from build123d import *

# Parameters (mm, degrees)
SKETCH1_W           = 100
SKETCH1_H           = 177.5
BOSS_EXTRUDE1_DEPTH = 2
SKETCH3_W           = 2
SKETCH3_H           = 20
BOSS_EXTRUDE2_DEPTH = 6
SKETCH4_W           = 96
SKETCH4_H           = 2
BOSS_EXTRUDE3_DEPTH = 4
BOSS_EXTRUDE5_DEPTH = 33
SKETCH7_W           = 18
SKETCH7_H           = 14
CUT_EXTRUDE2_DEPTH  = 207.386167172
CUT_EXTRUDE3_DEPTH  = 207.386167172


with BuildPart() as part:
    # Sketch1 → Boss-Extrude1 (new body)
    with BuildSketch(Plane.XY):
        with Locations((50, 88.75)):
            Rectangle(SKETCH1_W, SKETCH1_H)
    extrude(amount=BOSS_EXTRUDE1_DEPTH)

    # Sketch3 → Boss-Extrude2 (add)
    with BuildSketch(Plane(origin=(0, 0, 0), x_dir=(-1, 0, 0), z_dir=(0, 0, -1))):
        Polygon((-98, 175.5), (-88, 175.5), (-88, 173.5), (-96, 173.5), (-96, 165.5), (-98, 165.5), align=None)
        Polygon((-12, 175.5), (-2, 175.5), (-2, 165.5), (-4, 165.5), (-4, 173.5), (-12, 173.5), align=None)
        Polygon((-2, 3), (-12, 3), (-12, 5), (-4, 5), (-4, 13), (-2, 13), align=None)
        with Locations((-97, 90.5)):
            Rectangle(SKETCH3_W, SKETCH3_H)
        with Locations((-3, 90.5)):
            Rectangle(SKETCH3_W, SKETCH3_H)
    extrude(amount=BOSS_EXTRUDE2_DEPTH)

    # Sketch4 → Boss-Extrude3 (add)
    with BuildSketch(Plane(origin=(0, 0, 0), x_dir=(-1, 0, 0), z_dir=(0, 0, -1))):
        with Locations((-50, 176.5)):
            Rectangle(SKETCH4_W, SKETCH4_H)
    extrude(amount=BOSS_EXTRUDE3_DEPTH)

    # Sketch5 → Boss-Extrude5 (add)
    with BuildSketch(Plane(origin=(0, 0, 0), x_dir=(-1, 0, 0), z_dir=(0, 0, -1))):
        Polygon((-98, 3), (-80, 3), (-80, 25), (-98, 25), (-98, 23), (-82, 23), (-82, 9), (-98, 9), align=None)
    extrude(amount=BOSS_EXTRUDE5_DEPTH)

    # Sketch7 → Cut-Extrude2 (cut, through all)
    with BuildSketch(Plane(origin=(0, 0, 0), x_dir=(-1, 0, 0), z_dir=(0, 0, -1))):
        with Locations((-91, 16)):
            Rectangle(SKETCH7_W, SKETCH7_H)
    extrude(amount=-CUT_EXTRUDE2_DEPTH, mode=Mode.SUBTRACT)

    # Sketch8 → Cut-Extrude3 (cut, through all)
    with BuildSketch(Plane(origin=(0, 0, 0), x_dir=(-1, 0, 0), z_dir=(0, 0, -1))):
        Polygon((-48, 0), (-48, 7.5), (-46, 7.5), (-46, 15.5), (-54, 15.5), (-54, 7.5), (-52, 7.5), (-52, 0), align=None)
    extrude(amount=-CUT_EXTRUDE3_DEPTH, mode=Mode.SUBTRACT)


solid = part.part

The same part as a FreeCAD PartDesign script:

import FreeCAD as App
import Part
import Sketcher
Q = App.Units.Quantity

doc = App.newDocument("Part")
params = doc.addObject("Spreadsheet::Sheet", "Params")
for row, (alias, value) in enumerate([
    ("sketch1_width", "100 mm"),
    ("sketch1_height", "177.5 mm"),
    ("pad1_length", "2 mm"),
    ("sketch2_width", "10 mm"),
    ("sketch2_width2", "2 mm"),
    ("sketch2_height", "20 mm"),
    ("pad2_length", "6 mm"),
    ("sketch3_width", "96 mm"),
    ("sketch3_height", "2 mm"),
    ("pad3_length", "4 mm"),
    ("sketch4_width", "18 mm"),
    ("sketch4_width2", "16 mm"),
    ("sketch4_height", "22 mm"),
    ("sketch4_height2", "2 mm"),
    ("sketch4_height3", "14 mm"),
    ("pad4_length", "33 mm"),
    ("sketch5_width", "18 mm"),
    ("sketch5_height", "14 mm"),
    ("sketch6_width", "2 mm"),
    ("sketch6_width2", "8 mm"),
    ("sketch6_height", "7.5 mm"),
], start=1):
    params.set(f"A{row}", alias)
    params.set(f"B{row}", "=" + value)
    params.setAlias(f"B{row}", alias)

body = doc.addObject("PartDesign::Body", "Body")

# Sketch on XY plane
sketch1 = body.newObject("Sketcher::SketchObject", "Sketch")
sketch1.AttachmentSupport = (doc.getObject("XY_Plane"), [""])
sketch1.MapMode = "FlatFace"
sketch1.addGeometry(Part.LineSegment(App.Vector(0, 178, 0), App.Vector(0, 0, 0)), False)
sketch1.addGeometry(Part.LineSegment(App.Vector(0, 0, 0), App.Vector(100, 0, 0)), False)
sketch1.addGeometry(Part.LineSegment(App.Vector(100, 0, 0), App.Vector(100, 178, 0)), False)
sketch1.addGeometry(Part.LineSegment(App.Vector(100, 178, 0), App.Vector(0, 178, 0)), False)
sketch1.addConstraint(Sketcher.Constraint("Coincident", 0, 2, 1, 1))
sketch1.addConstraint(Sketcher.Constraint("Coincident", 1, 2, 2, 1))
sketch1.addConstraint(Sketcher.Constraint("Coincident", 2, 2, 3, 1))
sketch1.addConstraint(Sketcher.Constraint("Coincident", 3, 2, 0, 1))
sketch1.addConstraint(Sketcher.Constraint("Vertical", 0))
sketch1.addConstraint(Sketcher.Constraint("Horizontal", 1))
sketch1.addConstraint(Sketcher.Constraint("Vertical", 2))
sketch1.addConstraint(Sketcher.Constraint("Horizontal", 3))
sketch1.addConstraint(Sketcher.Constraint("Coincident", 0, 2, -1, 1))
sketch1.addConstraint(Sketcher.Constraint("DistanceX", 1, 1, 1, 2, Q("100 mm")))
sketch1.addConstraint(Sketcher.Constraint("DistanceY", 0, 2, 0, 1, Q("177.5 mm")))
sketch1.setExpression("Constraints[9]", "Params.sketch1_width")
sketch1.setExpression("Constraints[10]", "Params.sketch1_height")
pad1 = body.newObject("PartDesign::Pad", "Pad")
pad1.Profile = sketch1
pad1.setExpression("Length", "Params.pad1_length")

# Sketch on XY plane
sketch2 = body.newObject("Sketcher::SketchObject", "Sketch001")
sketch2.AttachmentSupport = (doc.getObject("XY_Plane"), [""])
sketch2.MapMode = "FlatFace"
sketch2.addGeometry(Part.LineSegment(App.Vector(88, 175.5, 0), App.Vector(98, 175.5, 0)), False)
sketch2.addGeometry(Part.LineSegment(App.Vector(98, 175.5, 0), App.Vector(98, 165.5, 0)), False)
sketch2.addGeometry(Part.LineSegment(App.Vector(98, 165.5, 0), App.Vector(96, 165.5, 0)), False)
sketch2.addGeometry(Part.LineSegment(App.Vector(96, 165.5, 0), App.Vector(96, 173.5, 0)), False)
sketch2.addGeometry(Part.LineSegment(App.Vector(96, 173.5, 0), App.Vector(88, 173.5, 0)), False)
sketch2.addGeometry(Part.LineSegment(App.Vector(88, 173.5, 0), App.Vector(88, 175.5, 0)), False)
sketch2.addGeometry(Part.LineSegment(App.Vector(2, 175.5, 0), App.Vector(12, 175.5, 0)), False)
sketch2.addGeometry(Part.LineSegment(App.Vector(12, 175.5, 0), App.Vector(12, 173.5, 0)), False)
sketch2.addGeometry(Part.LineSegment(App.Vector(12, 173.5, 0), App.Vector(4, 173.5, 0)), False)
sketch2.addGeometry(Part.LineSegment(App.Vector(4, 173.5, 0), App.Vector(4, 165.5, 0)), False)
sketch2.addGeometry(Part.LineSegment(App.Vector(4, 165.5, 0), App.Vector(2, 165.5, 0)), False)
sketch2.addGeometry(Part.LineSegment(App.Vector(2, 165.5, 0), App.Vector(2, 175.5, 0)), False)
sketch2.addGeometry(Part.LineSegment(App.Vector(12, 3, 0), App.Vector(2, 3, 0)), False)
sketch2.addGeometry(Part.LineSegment(App.Vector(2, 3, 0), App.Vector(2, 13, 0)), False)
sketch2.addGeometry(Part.LineSegment(App.Vector(2, 13, 0), App.Vector(4, 13, 0)), False)
sketch2.addGeometry(Part.LineSegment(App.Vector(4, 13, 0), App.Vector(4, 5, 0)), False)
sketch2.addGeometry(Part.LineSegment(App.Vector(4, 5, 0), App.Vector(12, 5, 0)), False)
sketch2.addGeometry(Part.LineSegment(App.Vector(12, 5, 0), App.Vector(12, 3, 0)), False)
sketch2.addGeometry(Part.LineSegment(App.Vector(98, 100.5, 0), App.Vector(98, 80.5, 0)), False)
sketch2.addGeometry(Part.LineSegment(App.Vector(98, 80.5, 0), App.Vector(96, 80.5, 0)), False)
sketch2.addGeometry(Part.LineSegment(App.Vector(96, 80.5, 0), App.Vector(96, 100.5, 0)), False)
sketch2.addGeometry(Part.LineSegment(App.Vector(96, 100.5, 0), App.Vector(98, 100.5, 0)), False)
sketch2.addGeometry(Part.LineSegment(App.Vector(4, 100.5, 0), App.Vector(4, 80.5, 0)), False)
sketch2.addGeometry(Part.LineSegment(App.Vector(4, 80.5, 0), App.Vector(2, 80.5, 0)), False)
sketch2.addGeometry(Part.LineSegment(App.Vector(2, 80.5, 0), App.Vector(2, 100.5, 0)), False)
sketch2.addGeometry(Part.LineSegment(App.Vector(2, 100.5, 0), App.Vector(4, 100.5, 0)), False)
sketch2.addConstraint(Sketcher.Constraint("Coincident", 0, 2, 1, 1))
sketch2.addConstraint(Sketcher.Constraint("Coincident", 1, 2, 2, 1))
sketch2.addConstraint(Sketcher.Constraint("Coincident", 2, 2, 3, 1))
sketch2.addConstraint(Sketcher.Constraint("Coincident", 3, 2, 4, 1))
sketch2.addConstraint(Sketcher.Constraint("Coincident", 4, 2, 5, 1))
sketch2.addConstraint(Sketcher.Constraint("Coincident", 5, 2, 0, 1))
sketch2.addConstraint(Sketcher.Constraint("Coincident", 6, 2, 7, 1))
sketch2.addConstraint(Sketcher.Constraint("Coincident", 7, 2, 8, 1))
sketch2.addConstraint(Sketcher.Constraint("Coincident", 8, 2, 9, 1))
sketch2.addConstraint(Sketcher.Constraint("Coincident", 9, 2, 10, 1))
sketch2.addConstraint(Sketcher.Constraint("Coincident", 10, 2, 11, 1))
sketch2.addConstraint(Sketcher.Constraint("Coincident", 11, 2, 6, 1))
sketch2.addConstraint(Sketcher.Constraint("Coincident", 12, 2, 13, 1))
sketch2.addConstraint(Sketcher.Constraint("Coincident", 13, 2, 14, 1))
sketch2.addConstraint(Sketcher.Constraint("Coincident", 14, 2, 15, 1))
sketch2.addConstraint(Sketcher.Constraint("Coincident", 15, 2, 16, 1))
sketch2.addConstraint(Sketcher.Constraint("Coincident", 16, 2, 17, 1))
sketch2.addConstraint(Sketcher.Constraint("Coincident", 17, 2, 12, 1))
sketch2.addConstraint(Sketcher.Constraint("Coincident", 18, 2, 19, 1))
sketch2.addConstraint(Sketcher.Constraint("Coincident", 19, 2, 20, 1))
sketch2.addConstraint(Sketcher.Constraint("Coincident", 20, 2, 21, 1))
sketch2.addConstraint(Sketcher.Constraint("Coincident", 21, 2, 18, 1))
sketch2.addConstraint(Sketcher.Constraint("Coincident", 22, 2, 23, 1))
sketch2.addConstraint(Sketcher.Constraint("Coincident", 23, 2, 24, 1))
sketch2.addConstraint(Sketcher.Constraint("Coincident", 24, 2, 25, 1))
sketch2.addConstraint(Sketcher.Constraint("Coincident", 25, 2, 22, 1))
sketch2.addConstraint(Sketcher.Constraint("Horizontal", 0))
sketch2.addConstraint(Sketcher.Constraint("Vertical", 1))
sketch2.addConstraint(Sketcher.Constraint("Horizontal", 2))
sketch2.addConstraint(Sketcher.Constraint("Vertical", 3))
sketch2.addConstraint(Sketcher.Constraint("Horizontal", 4))
sketch2.addConstraint(Sketcher.Constraint("Vertical", 5))
sketch2.addConstraint(Sketcher.Constraint("Horizontal", 6))
sketch2.addConstraint(Sketcher.Constraint("Vertical", 7))
sketch2.addConstraint(Sketcher.Constraint("Horizontal", 8))
sketch2.addConstraint(Sketcher.Constraint("Vertical", 9))
sketch2.addConstraint(Sketcher.Constraint("Horizontal", 10))
sketch2.addConstraint(Sketcher.Constraint("Vertical", 11))
sketch2.addConstraint(Sketcher.Constraint("Horizontal", 12))
sketch2.addConstraint(Sketcher.Constraint("Vertical", 13))
sketch2.addConstraint(Sketcher.Constraint("Horizontal", 14))
sketch2.addConstraint(Sketcher.Constraint("Vertical", 15))
sketch2.addConstraint(Sketcher.Constraint("Horizontal", 16))
sketch2.addConstraint(Sketcher.Constraint("Vertical", 17))
sketch2.addConstraint(Sketcher.Constraint("Vertical", 18))
sketch2.addConstraint(Sketcher.Constraint("Horizontal", 19))
sketch2.addConstraint(Sketcher.Constraint("Vertical", 20))
sketch2.addConstraint(Sketcher.Constraint("Horizontal", 21))
sketch2.addConstraint(Sketcher.Constraint("Vertical", 22))
sketch2.addConstraint(Sketcher.Constraint("Horizontal", 23))
sketch2.addConstraint(Sketcher.Constraint("Vertical", 24))
sketch2.addConstraint(Sketcher.Constraint("Horizontal", 25))
sketch2.addConstraint(Sketcher.Constraint("Horizontal", 5, 2, 6, 2))
sketch2.addConstraint(Sketcher.Constraint("Horizontal", 4, 2, 7, 2))
sketch2.addConstraint(Sketcher.Constraint("Horizontal", 2, 2, 9, 2))
sketch2.addConstraint(Sketcher.Constraint("Horizontal", 19, 2, 22, 2))
sketch2.addConstraint(Sketcher.Constraint("Horizontal", 21, 2, 24, 2))
sketch2.addConstraint(Sketcher.Constraint("Vertical", 11, 2, 12, 2))
sketch2.addConstraint(Sketcher.Constraint("Vertical", 9, 2, 14, 2))
sketch2.addConstraint(Sketcher.Constraint("Vertical", 7, 2, 16, 2))
sketch2.addConstraint(Sketcher.Constraint("Vertical", 1, 2, 18, 2))
sketch2.addConstraint(Sketcher.Constraint("Vertical", 3, 2, 19, 2))
sketch2.addConstraint(Sketcher.Constraint("Vertical", 15, 2, 22, 2))
sketch2.addConstraint(Sketcher.Constraint("Vertical", 13, 2, 23, 2))
sketch2.addConstraint(Sketcher.Constraint("Equal", 0, 6))
sketch2.addConstraint(Sketcher.Constraint("Equal", 4, 8))
sketch2.addConstraint(Sketcher.Constraint("Equal", 12, 1))
sketch2.addConstraint(Sketcher.Constraint("Equal", 16, 3))
sketch2.addConstraint(Sketcher.Constraint("Equal", 11, 13))
sketch2.addConstraint(Sketcher.Constraint("Equal", 9, 15))
sketch2.addConstraint(Sketcher.Constraint("DistanceX", 0, 1, 0, 2, Q("10 mm")))
sketch2.addConstraint(Sketcher.Constraint("DistanceX", 2, 2, 2, 1, Q("2 mm")))
sketch2.addConstraint(Sketcher.Constraint("DistanceY", 18, 2, 18, 1, Q("20 mm")))
sketch2.addConstraint(Sketcher.Constraint("DistanceX", -1, 1, 0, 2, Q("98 mm")))
sketch2.addConstraint(Sketcher.Constraint("DistanceX", -1, 1, 6, 2, Q("12 mm")))
sketch2.addConstraint(Sketcher.Constraint("DistanceY", -1, 1, 12, 2, Q("3 mm")))
sketch2.addConstraint(Sketcher.Constraint("DistanceY", 18, 2, 1, 2, Q("85 mm")))
sketch2.addConstraint(Sketcher.Constraint("DistanceY", -1, 1, 0, 2, Q("175.5 mm")))
sketch2.setExpression("Constraints[70]", "Params.sketch2_width")
sketch2.setExpression("Constraints[71]", "Params.sketch2_width2")
sketch2.setExpression("Constraints[72]", "Params.sketch2_height")
pad2 = body.newObject("PartDesign::Pad", "Pad001")
pad2.Profile = sketch2
pad2.setExpression("Length", "Params.pad2_length")
pad2.Reversed = True

# Sketch on XY plane
sketch3 = body.newObject("Sketcher::SketchObject", "Sketch002")
sketch3.AttachmentSupport = (doc.getObject("XY_Plane"), [""])
sketch3.MapMode = "FlatFace"
sketch3.addGeometry(Part.LineSegment(App.Vector(98, 177.5, 0), App.Vector(98, 175.5, 0)), False)
sketch3.addGeometry(Part.LineSegment(App.Vector(98, 175.5, 0), App.Vector(2, 175.5, 0)), False)
sketch3.addGeometry(Part.LineSegment(App.Vector(2, 175.5, 0), App.Vector(2, 177.5, 0)), False)
sketch3.addGeometry(Part.LineSegment(App.Vector(2, 177.5, 0), App.Vector(98, 177.5, 0)), False)
sketch3.addConstraint(Sketcher.Constraint("Coincident", 0, 2, 1, 1))
sketch3.addConstraint(Sketcher.Constraint("Coincident", 1, 2, 2, 1))
sketch3.addConstraint(Sketcher.Constraint("Coincident", 2, 2, 3, 1))
sketch3.addConstraint(Sketcher.Constraint("Coincident", 3, 2, 0, 1))
sketch3.addConstraint(Sketcher.Constraint("Vertical", 0))
sketch3.addConstraint(Sketcher.Constraint("Horizontal", 1))
sketch3.addConstraint(Sketcher.Constraint("Vertical", 2))
sketch3.addConstraint(Sketcher.Constraint("Horizontal", 3))
sketch3.addConstraint(Sketcher.Constraint("DistanceX", 1, 2, 1, 1, Q("96 mm")))
sketch3.addConstraint(Sketcher.Constraint("DistanceY", 0, 2, 0, 1, Q("2 mm")))
sketch3.addConstraint(Sketcher.Constraint("DistanceX", -1, 1, 0, 2, Q("98 mm")))
sketch3.addConstraint(Sketcher.Constraint("DistanceY", -1, 1, 0, 2, Q("175.5 mm")))
sketch3.setExpression("Constraints[8]", "Params.sketch3_width")
sketch3.setExpression("Constraints[9]", "Params.sketch3_height")
pad3 = body.newObject("PartDesign::Pad", "Pad002")
pad3.Profile = sketch3
pad3.setExpression("Length", "Params.pad3_length")
pad3.Reversed = True

# Sketch on XY plane
sketch4 = body.newObject("Sketcher::SketchObject", "Sketch003")
sketch4.AttachmentSupport = (doc.getObject("XY_Plane"), [""])
sketch4.MapMode = "FlatFace"
sketch4.addGeometry(Part.LineSegment(App.Vector(98, 3, 0), App.Vector(80, 3, 0)), False)
sketch4.addGeometry(Part.LineSegment(App.Vector(80, 3, 0), App.Vector(80, 25, 0)), False)
sketch4.addGeometry(Part.LineSegment(App.Vector(80, 25, 0), App.Vector(98, 25, 0)), False)
sketch4.addGeometry(Part.LineSegment(App.Vector(98, 25, 0), App.Vector(98, 23, 0)), False)
sketch4.addGeometry(Part.LineSegment(App.Vector(98, 23, 0), App.Vector(82, 23, 0)), False)
sketch4.addGeometry(Part.LineSegment(App.Vector(82, 23, 0), App.Vector(82, 9, 0)), False)
sketch4.addGeometry(Part.LineSegment(App.Vector(82, 9, 0), App.Vector(98, 9, 0)), False)
sketch4.addGeometry(Part.LineSegment(App.Vector(98, 9, 0), App.Vector(98, 3, 0)), False)
sketch4.addConstraint(Sketcher.Constraint("Coincident", 0, 2, 1, 1))
sketch4.addConstraint(Sketcher.Constraint("Coincident", 1, 2, 2, 1))
sketch4.addConstraint(Sketcher.Constraint("Coincident", 2, 2, 3, 1))
sketch4.addConstraint(Sketcher.Constraint("Coincident", 3, 2, 4, 1))
sketch4.addConstraint(Sketcher.Constraint("Coincident", 4, 2, 5, 1))
sketch4.addConstraint(Sketcher.Constraint("Coincident", 5, 2, 6, 1))
sketch4.addConstraint(Sketcher.Constraint("Coincident", 6, 2, 7, 1))
sketch4.addConstraint(Sketcher.Constraint("Coincident", 7, 2, 0, 1))
sketch4.addConstraint(Sketcher.Constraint("Horizontal", 0))
sketch4.addConstraint(Sketcher.Constraint("Vertical", 1))
sketch4.addConstraint(Sketcher.Constraint("Horizontal", 2))
sketch4.addConstraint(Sketcher.Constraint("Vertical", 3))
sketch4.addConstraint(Sketcher.Constraint("Horizontal", 4))
sketch4.addConstraint(Sketcher.Constraint("Vertical", 5))
sketch4.addConstraint(Sketcher.Constraint("Horizontal", 6))
sketch4.addConstraint(Sketcher.Constraint("Vertical", 7))
sketch4.addConstraint(Sketcher.Constraint("Vertical", 3, 2, 6, 2))
sketch4.addConstraint(Sketcher.Constraint("DistanceX", 0, 2, 0, 1, Q("18 mm")))
sketch4.addConstraint(Sketcher.Constraint("DistanceX", 4, 2, 4, 1, Q("16 mm")))
sketch4.addConstraint(Sketcher.Constraint("DistanceY", 1, 1, 1, 2, Q("22 mm")))
sketch4.addConstraint(Sketcher.Constraint("DistanceY", 3, 2, 3, 1, Q("2 mm")))
sketch4.addConstraint(Sketcher.Constraint("DistanceY", 5, 2, 5, 1, Q("14 mm")))
sketch4.addConstraint(Sketcher.Constraint("DistanceX", -1, 1, 0, 2, Q("80 mm")))
sketch4.addConstraint(Sketcher.Constraint("DistanceY", -1, 1, 0, 2, Q("3 mm")))
sketch4.setExpression("Constraints[17]", "Params.sketch4_width")
sketch4.setExpression("Constraints[18]", "Params.sketch4_width2")
sketch4.setExpression("Constraints[19]", "Params.sketch4_height")
sketch4.setExpression("Constraints[20]", "Params.sketch4_height2")
sketch4.setExpression("Constraints[21]", "Params.sketch4_height3")
pad4 = body.newObject("PartDesign::Pad", "Pad003")
pad4.Profile = sketch4
pad4.setExpression("Length", "Params.pad4_length")
pad4.Reversed = True

# Sketch on XY plane
sketch5 = body.newObject("Sketcher::SketchObject", "Sketch004")
sketch5.AttachmentSupport = (doc.getObject("XY_Plane"), [""])
sketch5.MapMode = "FlatFace"
sketch5.addGeometry(Part.LineSegment(App.Vector(100, 23, 0), App.Vector(100, 9, 0)), False)
sketch5.addGeometry(Part.LineSegment(App.Vector(100, 9, 0), App.Vector(82, 9, 0)), False)
sketch5.addGeometry(Part.LineSegment(App.Vector(82, 9, 0), App.Vector(82, 23, 0)), False)
sketch5.addGeometry(Part.LineSegment(App.Vector(82, 23, 0), App.Vector(100, 23, 0)), False)
sketch5.addConstraint(Sketcher.Constraint("Coincident", 0, 2, 1, 1))
sketch5.addConstraint(Sketcher.Constraint("Coincident", 1, 2, 2, 1))
sketch5.addConstraint(Sketcher.Constraint("Coincident", 2, 2, 3, 1))
sketch5.addConstraint(Sketcher.Constraint("Coincident", 3, 2, 0, 1))
sketch5.addConstraint(Sketcher.Constraint("Vertical", 0))
sketch5.addConstraint(Sketcher.Constraint("Horizontal", 1))
sketch5.addConstraint(Sketcher.Constraint("Vertical", 2))
sketch5.addConstraint(Sketcher.Constraint("Horizontal", 3))
sketch5.addConstraint(Sketcher.Constraint("DistanceX", 1, 2, 1, 1, Q("18 mm")))
sketch5.addConstraint(Sketcher.Constraint("DistanceY", 0, 2, 0, 1, Q("14 mm")))
sketch5.addConstraint(Sketcher.Constraint("DistanceX", -1, 1, 0, 2, Q("100 mm")))
sketch5.addConstraint(Sketcher.Constraint("DistanceY", -1, 1, 0, 2, Q("9 mm")))
sketch5.setExpression("Constraints[8]", "Params.sketch5_width")
sketch5.setExpression("Constraints[9]", "Params.sketch5_height")
pocket1 = body.newObject("PartDesign::Pocket", "Pocket")
pocket1.Profile = sketch5
pocket1.Type = "ThroughAll"
pocket1.Reversed = True

# Sketch on XY plane
sketch6 = body.newObject("Sketcher::SketchObject", "Sketch005")
sketch6.AttachmentSupport = (doc.getObject("XY_Plane"), [""])
sketch6.MapMode = "FlatFace"
sketch6.addGeometry(Part.LineSegment(App.Vector(48, 0, 0), App.Vector(48, 7.5, 0)), False)
sketch6.addGeometry(Part.LineSegment(App.Vector(48, 7.5, 0), App.Vector(46, 7.5, 0)), False)
sketch6.addGeometry(Part.LineSegment(App.Vector(46, 7.5, 0), App.Vector(46, 15.5, 0)), False)
sketch6.addGeometry(Part.LineSegment(App.Vector(46, 15.5, 0), App.Vector(54, 15.5, 0)), False)
sketch6.addGeometry(Part.LineSegment(App.Vector(54, 15.5, 0), App.Vector(54, 7.5, 0)), False)
sketch6.addGeometry(Part.LineSegment(App.Vector(54, 7.5, 0), App.Vector(52, 7.5, 0)), False)
sketch6.addGeometry(Part.LineSegment(App.Vector(52, 7.5, 0), App.Vector(52, 0, 0)), False)
sketch6.addGeometry(Part.LineSegment(App.Vector(52, 0, 0), App.Vector(48, 0, 0)), False)
sketch6.addConstraint(Sketcher.Constraint("Coincident", 0, 2, 1, 1))
sketch6.addConstraint(Sketcher.Constraint("Coincident", 1, 2, 2, 1))
sketch6.addConstraint(Sketcher.Constraint("Coincident", 2, 2, 3, 1))
sketch6.addConstraint(Sketcher.Constraint("Coincident", 3, 2, 4, 1))
sketch6.addConstraint(Sketcher.Constraint("Coincident", 4, 2, 5, 1))
sketch6.addConstraint(Sketcher.Constraint("Coincident", 5, 2, 6, 1))
sketch6.addConstraint(Sketcher.Constraint("Coincident", 6, 2, 7, 1))
sketch6.addConstraint(Sketcher.Constraint("Coincident", 7, 2, 0, 1))
sketch6.addConstraint(Sketcher.Constraint("Vertical", 0))
sketch6.addConstraint(Sketcher.Constraint("Horizontal", 1))
sketch6.addConstraint(Sketcher.Constraint("Vertical", 2))
sketch6.addConstraint(Sketcher.Constraint("Horizontal", 3))
sketch6.addConstraint(Sketcher.Constraint("Vertical", 4))
sketch6.addConstraint(Sketcher.Constraint("Horizontal", 5))
sketch6.addConstraint(Sketcher.Constraint("Vertical", 6))
sketch6.addConstraint(Sketcher.Constraint("Horizontal", 7))
sketch6.addConstraint(Sketcher.Constraint("PointOnObject", 6, 2, -1))
sketch6.addConstraint(Sketcher.Constraint("Horizontal", 1, 2, 4, 2))
sketch6.addConstraint(Sketcher.Constraint("Equal", 1, 5))
sketch6.addConstraint(Sketcher.Constraint("Equal", 3, 2))
sketch6.addConstraint(Sketcher.Constraint("DistanceX", 1, 2, 1, 1, Q("2 mm")))
sketch6.addConstraint(Sketcher.Constraint("DistanceX", 3, 1, 3, 2, Q("8 mm")))
sketch6.addConstraint(Sketcher.Constraint("DistanceY", 0, 1, 0, 2, Q("7.5 mm")))
sketch6.addConstraint(Sketcher.Constraint("DistanceX", -1, 1, 0, 2, Q("48 mm")))
sketch6.setExpression("Constraints[20]", "Params.sketch6_width")
sketch6.setExpression("Constraints[21]", "Params.sketch6_width2")
sketch6.setExpression("Constraints[22]", "Params.sketch6_height")
pocket2 = body.newObject("PartDesign::Pocket", "Pocket001")
pocket2.Profile = sketch6
pocket2.Type = "ThroughAll"
pocket2.Reversed = True

doc.recompute()
